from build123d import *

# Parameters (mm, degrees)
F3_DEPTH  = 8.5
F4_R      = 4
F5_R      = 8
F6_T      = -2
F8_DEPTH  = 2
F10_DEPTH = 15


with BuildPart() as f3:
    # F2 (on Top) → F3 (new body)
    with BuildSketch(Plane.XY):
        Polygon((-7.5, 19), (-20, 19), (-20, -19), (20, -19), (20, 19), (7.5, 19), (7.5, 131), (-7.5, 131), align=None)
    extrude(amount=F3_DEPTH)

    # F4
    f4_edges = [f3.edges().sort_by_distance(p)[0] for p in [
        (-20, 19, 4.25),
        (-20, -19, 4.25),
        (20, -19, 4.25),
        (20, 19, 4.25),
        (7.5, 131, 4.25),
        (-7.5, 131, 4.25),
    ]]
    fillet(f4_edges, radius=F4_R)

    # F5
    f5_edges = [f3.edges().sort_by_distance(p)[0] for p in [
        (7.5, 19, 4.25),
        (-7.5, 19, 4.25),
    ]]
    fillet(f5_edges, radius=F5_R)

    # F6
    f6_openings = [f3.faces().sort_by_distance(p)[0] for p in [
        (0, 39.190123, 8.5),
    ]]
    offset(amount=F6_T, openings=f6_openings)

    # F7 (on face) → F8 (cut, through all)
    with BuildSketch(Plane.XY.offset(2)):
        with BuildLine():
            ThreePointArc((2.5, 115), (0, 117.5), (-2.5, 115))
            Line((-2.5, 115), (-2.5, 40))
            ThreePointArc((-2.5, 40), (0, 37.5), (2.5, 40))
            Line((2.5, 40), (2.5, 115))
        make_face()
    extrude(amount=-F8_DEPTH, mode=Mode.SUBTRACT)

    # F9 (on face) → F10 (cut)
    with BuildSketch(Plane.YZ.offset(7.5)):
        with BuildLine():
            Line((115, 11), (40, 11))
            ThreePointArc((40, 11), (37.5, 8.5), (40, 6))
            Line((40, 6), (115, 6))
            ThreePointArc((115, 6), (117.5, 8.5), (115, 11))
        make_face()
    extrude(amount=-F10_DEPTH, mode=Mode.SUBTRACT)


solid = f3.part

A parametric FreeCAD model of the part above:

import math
import FreeCAD as App
import Part
import Sketcher

V = App.Vector


def edges_at(feature, points):
    """Names of the edges that pass closest to the given points."""
    edges = feature.Shape.Edges
    near = lambda p: min(range(len(edges)), key=lambda i: edges[i].distToShape(Part.Vertex(*p))[0])
    return sorted({f"Edge{near(p) + 1}" for p in points})


def faces_at(feature, points):
    """Names of the faces that lie closest to the given points."""
    faces = feature.Shape.Faces
    near = lambda p: min(range(len(faces)), key=lambda i: faces[i].distToShape(Part.Vertex(*p))[0])
    return sorted({f"Face{near(p) + 1}" for p in points})

doc = App.newDocument("Part")
body = doc.addObject("PartDesign::Body", "Body")

# Sketch on XY plane
sketch1 = doc.addObject("Sketcher::SketchObject", "Sketch")
body.addObject(sketch1)
sketch1.AttachmentSupport = (doc.XY_Plane, [""])
sketch1.MapMode = "FlatFace"
sketch1.addGeometry(Part.LineSegment(V(-8, 19, 0), V(-20, 19, 0)), False)
sketch1.addGeometry(Part.LineSegment(V(-20, 19, 0), V(-20, -19, 0)), False)
sketch1.addGeometry(Part.LineSegment(V(-20, -19, 0), V(20, -19, 0)), False)
sketch1.addGeometry(Part.LineSegment(V(20, -19, 0), V(20, 19, 0)), False)
sketch1.addGeometry(Part.LineSegment(V(20, 19, 0), V(8, 19, 0)), False)
sketch1.addGeometry(Part.LineSegment(V(8, 19, 0), V(8, 131, 0)), False)
sketch1.addGeometry(Part.LineSegment(V(8, 131, 0), V(-8, 131, 0)), False)
sketch1.addGeometry(Part.LineSegment(V(-8, 131, 0), V(-8, 19, 0)), False)
sketch1.addConstraint(Sketcher.Constraint("Coincident", 0, 2, 1, 1))
sketch1.addConstraint(Sketcher.Constraint("Coincident", 1, 2, 2, 1))
sketch1.addConstraint(Sketcher.Constraint("Coincident", 2, 2, 3, 1))
sketch1.addConstraint(Sketcher.Constraint("Coincident", 3, 2, 4, 1))
sketch1.addConstraint(Sketcher.Constraint("Coincident", 4, 2, 5, 1))
sketch1.addConstraint(Sketcher.Constraint("Coincident", 5, 2, 6, 1))
sketch1.addConstraint(Sketcher.Constraint("Coincident", 6, 2, 7, 1))
sketch1.addConstraint(Sketcher.Constraint("Coincident", 7, 2, 0, 1))
sketch1.addConstraint(Sketcher.Constraint("Horizontal", 0))
sketch1.addConstraint(Sketcher.Constraint("Vertical", 1))
sketch1.addConstraint(Sketcher.Constraint("Horizontal", 2))
sketch1.addConstraint(Sketcher.Constraint("Vertical", 3))
sketch1.addConstraint(Sketcher.Constraint("Horizontal", 4))
sketch1.addConstraint(Sketcher.Constraint("Vertical", 5))
sketch1.addConstraint(Sketcher.Constraint("Horizontal", 6))
sketch1.addConstraint(Sketcher.Constraint("Vertical", 7))
sketch1.addConstraint(Sketcher.Constraint("Symmetric", 0, 2, 2, 2, -1, 1))
sketch1.addConstraint(Sketcher.Constraint("Symmetric", 4, 2, 7, 2, -2))
sketch1.addConstraint(Sketcher.Constraint("DistanceX", 2, 1, 2, 2, 40.0))
sketch1.addConstraint(Sketcher.Constraint("DistanceX", 6, 2, 6, 1, 15.0))
sketch1.addConstraint(Sketcher.Constraint("DistanceY", 1, 2, 1, 1, 38.0))
sketch1.addConstraint(Sketcher.Constraint("DistanceY", 5, 1, 5, 2, 112.0))
pad1 = doc.addObject("PartDesign::Pad", "Pad")
body.addObject(pad1)
pad1.Profile = sketch1
pad1.Length = 8.5
doc.recompute()

fillet = doc.addObject("PartDesign::Fillet", "Fillet")
body.addObject(fillet)
fillet.Base = (pad1, edges_at(pad1, [
    (-20, 19, 4.25),
    (-20, -19, 4.25),
    (20, -19, 4.25),
    (20, 19, 4.25),
    (7.5, 131, 4.25),
    (-7.5, 131, 4.25),
]))
fillet.Radius = 4
doc.recompute()

fillet2 = doc.addObject("PartDesign::Fillet", "Fillet001")
body.addObject(fillet2)
fillet2.Base = (fillet, edges_at(fillet, [(7.5, 19, 4.25), (-7.5, 19, 4.25)]))
fillet2.Radius = 8
doc.recompute()

thickness = doc.addObject("PartDesign::Thickness", "Thickness")
body.addObject(thickness)
thickness.Base = (fillet2, faces_at(fillet2, [(0, 56, 8.5)]))
thickness.Value = 2
thickness.Reversed = True
thickness.Join = "Arc"

# Sketch on XY plane
sketch2 = doc.addObject("Sketcher::SketchObject", "Sketch001")
body.addObject(sketch2)
sketch2.AttachmentSupport = (doc.XY_Plane, [""])
sketch2.MapMode = "FlatFace"
sketch2.AttachmentOffset = App.Placement(V(0, 0, 2), App.Rotation())
sketch2.addGeometry(Part.ArcOfCircle(Part.Circle(V(0, 115, 0), V(0, 0, 1), 2.5), math.radians(0), math.radians(180)), False)
sketch2.addGeometry(Part.LineSegment(V(-2.5, 115, 0), V(-2.5, 40, 0)), False)
sketch2.addGeometry(Part.ArcOfCircle(Part.Circle(V(0, 40, 0), V(0, 0, 1), 2.5), math.radians(180), math.radians(360)), False)
sketch2.addGeometry(Part.LineSegment(V(2.5, 40, 0), V(2.5, 115, 0)), False)
sketch2.addConstraint(Sketcher.Constraint("Tangent", 0, 2, 1, 1))
sketch2.addConstraint(Sketcher.Constraint("Tangent", 1, 2, 2, 1))
sketch2.addConstraint(Sketcher.Constraint("Tangent", 2, 2, 3, 1))
sketch2.addConstraint(Sketcher.Constraint("Tangent", 3, 2, 0, 1))
sketch2.addConstraint(Sketcher.Constraint("Vertical", 1))
sketch2.addConstraint(Sketcher.Constraint("Vertical", 3))
sketch2.addConstraint(Sketcher.Constraint("PointOnObject", 0, 3, -2))
sketch2.addConstraint(Sketcher.Constraint("Radius", 0, 2.5))
sketch2.addConstraint(Sketcher.Constraint("DistanceY", 1, 2, 1, 1, 75.0))
sketch2.addConstraint(Sketcher.Constraint("DistanceY", -1, 1, 0, 3, 115.0))
pocket1 = doc.addObject("PartDesign::Pocket", "Pocket")
body.addObject(pocket1)
pocket1.Profile = sketch2
pocket1.Type = "ThroughAll"

# Sketch on YZ plane
sketch3 = doc.addObject("Sketcher::SketchObject", "Sketch002")
body.addObject(sketch3)
sketch3.AttachmentSupport = (doc.YZ_Plane, [""])
sketch3.MapMode = "FlatFace"
sketch3.AttachmentOffset = App.Placement(V(0, 0, 7.5), App.Rotation())
sketch3.addGeometry(Part.LineSegment(V(115, 11, 0), V(40, 11, 0)), False)
sketch3.addGeometry(Part.ArcOfCircle(Part.Circle(V(40, 8.5, 0), V(0, 0, 1), 2.5), math.radians(90), math.radians(270)), False)
sketch3.addGeometry(Part.LineSegment(V(40, 6, 0), V(115, 6, 0)), False)
sketch3.addGeometry(Part.ArcOfCircle(Part.Circle(V(115, 8.5, 0), V(0, 0, 1), 2.5), math.radians(-90), math.radians(90)), False)
sketch3.addConstraint(Sketcher.Constraint("Tangent", 0, 2, 1, 1))
sketch3.addConstraint(Sketcher.Constraint("Tangent", 1, 2, 2, 1))
sketch3.addConstraint(Sketcher.Constraint("Tangent", 2, 2, 3, 1))
sketch3.addConstraint(Sketcher.Constraint("Tangent", 3, 2, 0, 1))
sketch3.addConstraint(Sketcher.Constraint("Horizontal", 0))
sketch3.addConstraint(Sketcher.Constraint("Horizontal", 2))
sketch3.addConstraint(Sketcher.Constraint("Radius", 1, 2.5))
sketch3.addConstraint(Sketcher.Constraint("DistanceX", 0, 2, 0, 1, 75.0))
sketch3.addConstraint(Sketcher.Constraint("DistanceX", -1, 1, 1, 3, 40.0))
sketch3.addConstraint(Sketcher.Constraint("DistanceY", -1, 1, 0, 2, 11.0))
pocket2 = doc.addObject("PartDesign::Pocket", "Pocket001")
body.addObject(pocket2)
pocket2.Profile = sketch3
pocket2.Length = 15

doc.recompute()
